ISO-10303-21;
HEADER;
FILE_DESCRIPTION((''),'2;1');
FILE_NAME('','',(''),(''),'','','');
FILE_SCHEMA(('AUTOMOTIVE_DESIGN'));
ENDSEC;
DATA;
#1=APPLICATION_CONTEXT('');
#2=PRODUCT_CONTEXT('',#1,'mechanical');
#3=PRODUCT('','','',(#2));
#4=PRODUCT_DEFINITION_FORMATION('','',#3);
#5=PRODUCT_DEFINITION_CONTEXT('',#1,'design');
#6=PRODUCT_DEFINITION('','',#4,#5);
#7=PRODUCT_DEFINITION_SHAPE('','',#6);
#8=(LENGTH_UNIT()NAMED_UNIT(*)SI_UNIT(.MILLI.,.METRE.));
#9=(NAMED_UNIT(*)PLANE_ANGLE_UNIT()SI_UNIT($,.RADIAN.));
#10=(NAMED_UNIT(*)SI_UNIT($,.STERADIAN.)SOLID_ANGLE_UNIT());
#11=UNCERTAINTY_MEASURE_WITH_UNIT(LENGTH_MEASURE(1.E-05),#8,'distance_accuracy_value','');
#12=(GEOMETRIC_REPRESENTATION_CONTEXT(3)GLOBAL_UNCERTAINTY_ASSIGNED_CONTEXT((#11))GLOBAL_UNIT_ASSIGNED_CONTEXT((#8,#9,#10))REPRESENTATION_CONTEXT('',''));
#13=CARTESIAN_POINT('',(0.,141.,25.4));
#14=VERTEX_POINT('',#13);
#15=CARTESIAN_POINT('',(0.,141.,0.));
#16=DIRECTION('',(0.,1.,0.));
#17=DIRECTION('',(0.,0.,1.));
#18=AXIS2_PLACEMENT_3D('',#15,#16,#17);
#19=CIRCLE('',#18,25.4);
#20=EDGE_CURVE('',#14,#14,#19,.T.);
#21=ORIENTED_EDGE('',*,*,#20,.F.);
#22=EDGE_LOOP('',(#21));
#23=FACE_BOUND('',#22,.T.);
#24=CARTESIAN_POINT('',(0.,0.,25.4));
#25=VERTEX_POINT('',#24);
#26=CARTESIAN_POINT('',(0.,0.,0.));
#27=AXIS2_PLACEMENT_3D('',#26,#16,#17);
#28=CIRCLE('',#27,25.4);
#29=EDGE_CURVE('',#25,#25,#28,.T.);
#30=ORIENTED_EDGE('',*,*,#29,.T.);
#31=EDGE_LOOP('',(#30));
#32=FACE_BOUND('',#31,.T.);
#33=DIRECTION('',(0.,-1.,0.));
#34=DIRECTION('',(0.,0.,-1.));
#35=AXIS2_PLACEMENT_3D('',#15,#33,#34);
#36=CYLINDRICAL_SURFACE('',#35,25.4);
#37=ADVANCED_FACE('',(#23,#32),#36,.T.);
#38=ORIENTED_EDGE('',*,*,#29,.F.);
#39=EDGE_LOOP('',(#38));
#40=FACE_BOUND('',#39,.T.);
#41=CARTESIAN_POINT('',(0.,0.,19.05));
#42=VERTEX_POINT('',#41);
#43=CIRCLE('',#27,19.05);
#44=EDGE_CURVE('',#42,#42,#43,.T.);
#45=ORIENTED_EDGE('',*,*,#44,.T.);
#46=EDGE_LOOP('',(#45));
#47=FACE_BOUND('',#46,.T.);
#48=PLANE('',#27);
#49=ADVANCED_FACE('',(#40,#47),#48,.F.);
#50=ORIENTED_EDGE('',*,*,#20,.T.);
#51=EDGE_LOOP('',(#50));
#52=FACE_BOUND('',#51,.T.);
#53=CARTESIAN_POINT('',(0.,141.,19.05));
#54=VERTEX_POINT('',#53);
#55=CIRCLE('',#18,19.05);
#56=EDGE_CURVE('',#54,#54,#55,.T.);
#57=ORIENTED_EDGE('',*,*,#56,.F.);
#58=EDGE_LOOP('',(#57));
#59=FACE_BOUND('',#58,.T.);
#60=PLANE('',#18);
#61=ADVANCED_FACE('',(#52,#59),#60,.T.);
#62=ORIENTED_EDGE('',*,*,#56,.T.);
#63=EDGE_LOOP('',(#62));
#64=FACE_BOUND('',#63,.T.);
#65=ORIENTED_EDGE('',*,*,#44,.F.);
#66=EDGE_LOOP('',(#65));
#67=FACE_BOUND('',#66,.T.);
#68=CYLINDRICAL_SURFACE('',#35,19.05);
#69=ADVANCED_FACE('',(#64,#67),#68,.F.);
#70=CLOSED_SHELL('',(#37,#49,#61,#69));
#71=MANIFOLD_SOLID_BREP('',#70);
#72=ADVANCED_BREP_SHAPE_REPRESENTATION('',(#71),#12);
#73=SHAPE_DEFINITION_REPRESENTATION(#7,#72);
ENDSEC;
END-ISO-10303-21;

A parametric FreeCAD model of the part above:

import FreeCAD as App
import Part
import Sketcher

V = App.Vector
Q = App.Units.Quantity

doc = App.newDocument("Part")
body = doc.addObject("PartDesign::Body", "Body")

sketch1 = body.newObject("Sketcher::SketchObject", "Sketch")
sketch1.AttachmentSupport = (doc.getObject("XZ_Plane"), [""])
sketch1.MapMode = "FlatFace"
sketch1.addGeometry([
    Part.Circle(V(0, 0, 0), V(0, 0, 1), 25.4),
    Part.Circle(V(0, 0, 0), V(0, 0, 1), 19.05),
], False)
sketch1.addConstraint([
    Sketcher.Constraint("Coincident", 0, 3, -1, 1),
    Sketcher.Constraint("Coincident", 1, 3, -1, 1),
    Sketcher.Constraint("Diameter", 0, Q("2 in")),
    Sketcher.Constraint("Diameter", 1, Q("1.5 in")),
])
pad1 = body.newObject("PartDesign::Pad", "Pad")
pad1.Profile = sketch1
pad1.Length = 141
pad1.Reversed = True

doc.recompute()
